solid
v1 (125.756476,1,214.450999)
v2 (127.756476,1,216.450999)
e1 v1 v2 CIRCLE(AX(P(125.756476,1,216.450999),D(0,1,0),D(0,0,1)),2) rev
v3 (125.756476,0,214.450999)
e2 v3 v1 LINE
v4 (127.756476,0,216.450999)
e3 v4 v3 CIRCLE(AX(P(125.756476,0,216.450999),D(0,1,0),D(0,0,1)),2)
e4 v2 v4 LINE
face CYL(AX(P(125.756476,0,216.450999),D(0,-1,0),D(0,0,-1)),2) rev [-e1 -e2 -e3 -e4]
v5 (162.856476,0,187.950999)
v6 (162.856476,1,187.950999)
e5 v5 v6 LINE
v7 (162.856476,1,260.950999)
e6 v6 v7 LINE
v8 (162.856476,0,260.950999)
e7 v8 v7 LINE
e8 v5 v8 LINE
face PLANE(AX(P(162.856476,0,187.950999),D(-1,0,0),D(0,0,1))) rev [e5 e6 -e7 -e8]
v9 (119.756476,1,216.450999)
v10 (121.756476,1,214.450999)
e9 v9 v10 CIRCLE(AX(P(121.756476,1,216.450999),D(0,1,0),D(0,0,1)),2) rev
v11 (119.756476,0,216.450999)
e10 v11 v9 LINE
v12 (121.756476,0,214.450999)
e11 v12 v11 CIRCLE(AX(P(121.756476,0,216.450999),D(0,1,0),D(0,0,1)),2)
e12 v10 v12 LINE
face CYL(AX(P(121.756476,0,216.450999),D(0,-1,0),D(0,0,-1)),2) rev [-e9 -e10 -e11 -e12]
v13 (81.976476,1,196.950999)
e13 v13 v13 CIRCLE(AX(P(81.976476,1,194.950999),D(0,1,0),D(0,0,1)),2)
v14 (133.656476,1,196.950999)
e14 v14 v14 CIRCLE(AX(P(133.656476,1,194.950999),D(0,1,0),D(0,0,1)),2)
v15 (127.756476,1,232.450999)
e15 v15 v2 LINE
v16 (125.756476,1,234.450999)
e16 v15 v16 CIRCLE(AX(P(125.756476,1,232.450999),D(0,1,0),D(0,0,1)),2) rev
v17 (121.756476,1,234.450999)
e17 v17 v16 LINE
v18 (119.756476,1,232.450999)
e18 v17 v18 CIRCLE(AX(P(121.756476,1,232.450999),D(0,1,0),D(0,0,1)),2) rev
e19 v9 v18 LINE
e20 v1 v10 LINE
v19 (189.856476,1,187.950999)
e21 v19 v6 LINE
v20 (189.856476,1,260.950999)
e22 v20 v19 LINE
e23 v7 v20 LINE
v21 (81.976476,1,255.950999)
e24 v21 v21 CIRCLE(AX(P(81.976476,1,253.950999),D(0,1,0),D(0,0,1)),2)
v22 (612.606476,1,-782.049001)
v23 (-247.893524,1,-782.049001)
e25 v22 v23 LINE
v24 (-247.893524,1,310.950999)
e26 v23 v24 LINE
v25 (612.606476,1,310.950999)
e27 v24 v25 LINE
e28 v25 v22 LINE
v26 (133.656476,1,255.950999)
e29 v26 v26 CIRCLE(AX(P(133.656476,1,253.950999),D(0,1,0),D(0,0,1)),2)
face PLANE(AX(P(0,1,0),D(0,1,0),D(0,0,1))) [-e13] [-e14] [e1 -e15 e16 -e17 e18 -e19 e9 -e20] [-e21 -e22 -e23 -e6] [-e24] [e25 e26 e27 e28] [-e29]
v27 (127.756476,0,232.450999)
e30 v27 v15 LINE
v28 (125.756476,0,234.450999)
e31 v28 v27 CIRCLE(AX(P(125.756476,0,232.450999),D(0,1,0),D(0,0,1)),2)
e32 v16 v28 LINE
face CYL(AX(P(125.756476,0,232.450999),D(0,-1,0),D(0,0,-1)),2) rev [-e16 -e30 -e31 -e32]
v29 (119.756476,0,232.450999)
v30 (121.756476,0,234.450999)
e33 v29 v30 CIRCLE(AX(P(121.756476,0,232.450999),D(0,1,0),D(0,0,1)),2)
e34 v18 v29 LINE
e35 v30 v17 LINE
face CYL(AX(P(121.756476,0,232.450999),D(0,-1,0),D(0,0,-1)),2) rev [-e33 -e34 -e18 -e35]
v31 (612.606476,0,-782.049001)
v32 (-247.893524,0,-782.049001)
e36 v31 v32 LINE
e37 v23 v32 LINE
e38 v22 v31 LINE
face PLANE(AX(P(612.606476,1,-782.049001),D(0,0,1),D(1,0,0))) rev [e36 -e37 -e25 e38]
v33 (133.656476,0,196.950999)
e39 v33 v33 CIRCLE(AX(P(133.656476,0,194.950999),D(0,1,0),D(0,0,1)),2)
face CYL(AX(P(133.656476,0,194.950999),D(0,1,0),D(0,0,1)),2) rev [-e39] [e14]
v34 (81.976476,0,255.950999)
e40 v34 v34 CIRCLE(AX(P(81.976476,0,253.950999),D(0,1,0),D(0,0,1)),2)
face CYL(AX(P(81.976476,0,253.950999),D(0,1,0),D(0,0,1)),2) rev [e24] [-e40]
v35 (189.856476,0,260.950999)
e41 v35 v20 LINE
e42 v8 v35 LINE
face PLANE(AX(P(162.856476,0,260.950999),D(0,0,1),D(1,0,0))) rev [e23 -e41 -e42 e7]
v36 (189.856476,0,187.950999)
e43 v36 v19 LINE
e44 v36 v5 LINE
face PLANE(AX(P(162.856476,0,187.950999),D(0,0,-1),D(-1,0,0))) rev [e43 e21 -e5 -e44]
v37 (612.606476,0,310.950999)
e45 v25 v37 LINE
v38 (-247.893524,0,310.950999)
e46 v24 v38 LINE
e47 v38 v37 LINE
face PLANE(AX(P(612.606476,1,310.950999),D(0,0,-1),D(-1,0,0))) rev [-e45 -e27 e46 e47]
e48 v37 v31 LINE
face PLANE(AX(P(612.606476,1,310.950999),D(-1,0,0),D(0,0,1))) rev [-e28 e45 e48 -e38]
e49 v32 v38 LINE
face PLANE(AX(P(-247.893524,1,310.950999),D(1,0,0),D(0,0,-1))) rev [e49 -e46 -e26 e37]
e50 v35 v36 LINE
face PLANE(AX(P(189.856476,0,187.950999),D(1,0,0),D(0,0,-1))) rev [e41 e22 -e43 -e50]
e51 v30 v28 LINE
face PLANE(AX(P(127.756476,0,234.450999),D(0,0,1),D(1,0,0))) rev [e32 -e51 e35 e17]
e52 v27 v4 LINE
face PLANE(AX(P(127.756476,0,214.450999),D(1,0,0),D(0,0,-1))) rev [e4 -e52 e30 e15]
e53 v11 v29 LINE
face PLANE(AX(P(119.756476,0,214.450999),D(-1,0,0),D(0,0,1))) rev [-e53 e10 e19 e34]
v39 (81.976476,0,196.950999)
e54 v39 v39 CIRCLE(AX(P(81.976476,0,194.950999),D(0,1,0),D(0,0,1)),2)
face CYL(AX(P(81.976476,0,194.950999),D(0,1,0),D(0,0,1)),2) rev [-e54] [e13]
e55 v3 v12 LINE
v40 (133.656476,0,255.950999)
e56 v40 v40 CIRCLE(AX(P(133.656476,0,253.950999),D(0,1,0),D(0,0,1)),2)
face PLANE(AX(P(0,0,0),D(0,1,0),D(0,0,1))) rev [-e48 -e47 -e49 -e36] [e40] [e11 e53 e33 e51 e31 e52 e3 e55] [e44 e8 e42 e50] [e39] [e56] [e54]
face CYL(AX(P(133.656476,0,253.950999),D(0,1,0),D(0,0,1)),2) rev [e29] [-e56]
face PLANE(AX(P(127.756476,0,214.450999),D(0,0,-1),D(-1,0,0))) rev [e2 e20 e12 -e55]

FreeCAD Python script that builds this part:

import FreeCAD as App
import Part
import Sketcher
Q = App.Units.Quantity


def edges_at(feature, points):
    """Names of the edges that pass closest to the given points."""
    edges = feature.Shape.Edges
    near = lambda p: min(range(len(edges)), key=lambda i: edges[i].distToShape(Part.Vertex(*p))[0])
    return sorted({f"Edge{near(p) + 1}" for p in points})

doc = App.newDocument("Part")
body = doc.addObject("PartDesign::Body", "Body")

# Sketch on XZ plane
sketch1 = doc.addObject("Sketcher::SketchObject", "Sketch")
body.addObject(sketch1)
sketch1.AttachmentSupport = (doc.XZ_Plane, [""])
sketch1.MapMode = "FlatFace"
sketch1.addGeometry(Part.LineSegment(App.Vector(-248, -782, 0), App.Vector(-248, 311, 0)), False)
sketch1.addGeometry(Part.LineSegment(App.Vector(-248, 311, 0), App.Vector(613, 311, 0)), False)
sketch1.addGeometry(Part.LineSegment(App.Vector(613, 311, 0), App.Vector(613, -782, 0)), False)
sketch1.addGeometry(Part.LineSegment(App.Vector(613, -782, 0), App.Vector(-248, -782, 0)), False)
sketch1.addConstraint(Sketcher.Constraint("Coincident", 0, 2, 1, 1))
sketch1.addConstraint(Sketcher.Constraint("Coincident", 1, 2, 2, 1))
sketch1.addConstraint(Sketcher.Constraint("Coincident", 2, 2, 3, 1))
sketch1.addConstraint(Sketcher.Constraint("Coincident", 3, 2, 0, 1))
sketch1.addConstraint(Sketcher.Constraint("Vertical", 0))
sketch1.addConstraint(Sketcher.Constraint("Horizontal", 1))
sketch1.addConstraint(Sketcher.Constraint("Vertical", 2))
sketch1.addConstraint(Sketcher.Constraint("Horizontal", 3))
sketch1.addConstraint(Sketcher.Constraint("DistanceY", 0, 1, 0, 2, Q("1093 mm")))
sketch1.addConstraint(Sketcher.Constraint("DistanceX", 1, 1, 1, 2, Q("860.5 mm")))
sketch1.addConstraint(Sketcher.Constraint("DistanceY", -1, 1, 0, 2, Q("310.950999 mm")))
sketch1.addConstraint(Sketcher.Constraint("DistanceX", 0, 2, -1, 1, Q("247.893524 mm")))
pad1 = doc.addObject("PartDesign::Pad", "Pad")
body.addObject(pad1)
pad1.Profile = sketch1
pad1.Length = 1
pad1.Reversed = True

# Sketch on XZ plane
sketch2 = doc.addObject("Sketcher::SketchObject", "Sketch001")
body.addObject(sketch2)
sketch2.AttachmentSupport = (doc.XZ_Plane, [""])
sketch2.MapMode = "FlatFace"
sketch2.AttachmentOffset = App.Placement(App.Vector(0, 0, -1), App.Rotation())
sketch2.addGeometry(Part.LineSegment(App.Vector(163, 188, 0), App.Vector(163, 261, 0)), False)
sketch2.addGeometry(Part.LineSegment(App.Vector(163, 261, 0), App.Vector(190, 261, 0)), False)
sketch2.addGeometry(Part.LineSegment(App.Vector(190, 261, 0), App.Vector(190, 188, 0)), False)
sketch2.addGeometry(Part.LineSegment(App.Vector(190, 188, 0), App.Vector(163, 188, 0)), False)
sketch2.addConstraint(Sketcher.Constraint("Coincident", 0, 2, 1, 1))
sketch2.addConstraint(Sketcher.Constraint("Coincident", 1, 2, 2, 1))
sketch2.addConstraint(Sketcher.Constraint("Coincident", 2, 2, 3, 1))
sketch2.addConstraint(Sketcher.Constraint("Coincident", 3, 2, 0, 1))
sketch2.addConstraint(Sketcher.Constraint("Vertical", 0))
sketch2.addConstraint(Sketcher.Constraint("Horizontal", 1))
sketch2.addConstraint(Sketcher.Constraint("Vertical", 2))
sketch2.addConstraint(Sketcher.Constraint("Horizontal", 3))
sketch2.addConstraint(Sketcher.Constraint("DistanceX", 1, 1, 1, 2, Q("27 mm")))
sketch2.addConstraint(Sketcher.Constraint("DistanceY", 0, 1, 0, 2, Q("73 mm")))
sketch2.addConstraint(Sketcher.Constraint("DistanceY", -1, 1, 0, 2, Q("260.950999 mm")))
sketch2.addConstraint(Sketcher.Constraint("DistanceX", -1, 1, 0, 2, Q("162.856476 mm")))
pocket1 = doc.addObject("PartDesign::Pocket", "Pocket")
body.addObject(pocket1)
pocket1.Profile = sketch2
pocket1.Length = 1
pocket1.Reversed = True

# Sketch on XZ plane
sketch3 = doc.addObject("Sketcher::SketchObject", "Sketch002")
body.addObject(sketch3)
sketch3.AttachmentSupport = (doc.XZ_Plane, [""])
sketch3.MapMode = "FlatFace"
sketch3.AttachmentOffset = App.Placement(App.Vector(0, 0, -1), App.Rotation())
sketch3.addGeometry(Part.Circle(App.Vector(133.7, 195, 0), App.Vector(0, 0, 1), 2), False)
sketch3.addGeometry(Part.Circle(App.Vector(133.7, 254, 0), App.Vector(0, 0, 1), 2), False)
sketch3.addGeometry(Part.Circle(App.Vector(82, 195, 0), App.Vector(0, 0, 1), 2), False)
sketch3.addGeometry(Part.Circle(App.Vector(82, 254, 0), App.Vector(0, 0, 1), 2), False)
sketch3.addConstraint(Sketcher.Constraint("Equal", 0, 1))
sketch3.addConstraint(Sketcher.Constraint("Equal", 1, 2))
sketch3.addConstraint(Sketcher.Constraint("Equal", 2, 3))
sketch3.addConstraint(Sketcher.Constraint("Horizontal", 0, 3, 2, 3))
sketch3.addConstraint(Sketcher.Constraint("Horizontal", 1, 3, 3, 3))
sketch3.addConstraint(Sketcher.Constraint("Vertical", 0, 3, 1, 3))
sketch3.addConstraint(Sketcher.Constraint("Vertical", 2, 3, 3, 3))
sketch3.addConstraint(Sketcher.Constraint("Diameter", 0, Q("4 mm")))
sketch3.addConstraint(Sketcher.Constraint("DistanceY", 0, 3, 1, 3, Q("59 mm")))
sketch3.addConstraint(Sketcher.Constraint("DistanceX", 2, 3, 0, 3, Q("51.68 mm")))
sketch3.addConstraint(Sketcher.Constraint("DistanceY", -1, 1, 0, 3, Q("194.950999 mm")))
sketch3.addConstraint(Sketcher.Constraint("DistanceX", -1, 1, 0, 3, Q("133.656476 mm")))
pocket2 = doc.addObject("PartDesign::Pocket", "Pocket001")
body.addObject(pocket2)
pocket2.Profile = sketch3
pocket2.Type = "ThroughAll"
pocket2.Reversed = True

# Sketch on XZ plane
sketch4 = doc.addObject("Sketcher::SketchObject", "Sketch003")
body.addObject(sketch4)
sketch4.AttachmentSupport = (doc.XZ_Plane, [""])
sketch4.MapMode = "FlatFace"
sketch4.AttachmentOffset = App.Placement(App.Vector(0, 0, -1), App.Rotation())
sketch4.addGeometry(Part.LineSegment(App.Vector(120, 214, 0), App.Vector(120, 234, 0)), False)
sketch4.addGeometry(Part.LineSegment(App.Vector(120, 234, 0), App.Vector(128, 234, 0)), False)
sketch4.addGeometry(Part.LineSegment(App.Vector(128, 234, 0), App.Vector(128, 214, 0)), False)
sketch4.addGeometry(Part.LineSegment(App.Vector(128, 214, 0), App.Vector(120, 214, 0)), False)
sketch4.addConstraint(Sketcher.Constraint("Coincident", 0, 2, 1, 1))
sketch4.addConstraint(Sketcher.Constraint("Coincident", 1, 2, 2, 1))
sketch4.addConstraint(Sketcher.Constraint("Coincident", 2, 2, 3, 1))
sketch4.addConstraint(Sketcher.Constraint("Coincident", 3, 2, 0, 1))
sketch4.addConstraint(Sketcher.Constraint("Vertical", 0))
sketch4.addConstraint(Sketcher.Constraint("Horizontal", 1))
sketch4.addConstraint(Sketcher.Constraint("Vertical", 2))
sketch4.addConstraint(Sketcher.Constraint("Horizontal", 3))
sketch4.addConstraint(Sketcher.Constraint("DistanceX", 1, 1, 1, 2, Q("8 mm")))
sketch4.addConstraint(Sketcher.Constraint("DistanceY", 0, 1, 0, 2, Q("20 mm")))
sketch4.addConstraint(Sketcher.Constraint("DistanceY", -1, 1, 0, 2, Q("234.450999 mm")))
sketch4.addConstraint(Sketcher.Constraint("DistanceX", -1, 1, 0, 2, Q("119.756476 mm")))
pocket3 = doc.addObject("PartDesign::Pocket", "Pocket002")
body.addObject(pocket3)
pocket3.Profile = sketch4
pocket3.Length = 1
pocket3.Reversed = True
doc.recompute()

fillet = doc.addObject("PartDesign::Fillet", "Fillet")
body.addObject(fillet)
fillet.Base = (pocket3, edges_at(pocket3, [
    (127.756, 0.5, 214.451),
    (127.756, 0.5, 234.451),
    (119.756, 0.5, 234.451),
    (119.756, 0.5, 214.451),
]))
fillet.Radius = 2

doc.recompute()
